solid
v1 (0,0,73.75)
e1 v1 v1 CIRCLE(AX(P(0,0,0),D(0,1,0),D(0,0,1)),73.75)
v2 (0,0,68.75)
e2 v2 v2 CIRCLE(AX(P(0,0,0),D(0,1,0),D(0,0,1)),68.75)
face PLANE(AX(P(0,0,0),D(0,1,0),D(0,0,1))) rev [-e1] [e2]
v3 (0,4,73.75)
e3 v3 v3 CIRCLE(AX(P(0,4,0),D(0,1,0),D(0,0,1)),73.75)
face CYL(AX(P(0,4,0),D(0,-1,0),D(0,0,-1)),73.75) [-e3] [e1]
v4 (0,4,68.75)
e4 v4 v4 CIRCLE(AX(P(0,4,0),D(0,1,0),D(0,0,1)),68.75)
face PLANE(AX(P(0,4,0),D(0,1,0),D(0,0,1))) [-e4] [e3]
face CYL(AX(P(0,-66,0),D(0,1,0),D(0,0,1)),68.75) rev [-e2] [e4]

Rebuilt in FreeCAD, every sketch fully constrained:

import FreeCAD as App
import Part
import Sketcher

doc = App.newDocument("Part")
body = doc.addObject("PartDesign::Body", "Body")

# Sketch on XZ plane
sketch1 = body.newObject("Sketcher::SketchObject", "Sketch")
sketch1.AttachmentSupport = (doc.getObject("XZ_Plane"), [""])
sketch1.MapMode = "FlatFace"
sketch1.addGeometry(Part.Circle(App.Vector(0, 0, 0), App.Vector(0, 0, 1), 73.75), False)
sketch1.addConstraint([
    Sketcher.Constraint("Coincident", 0, 3, -1, 1),
    Sketcher.Constraint("Diameter", 0, 147.5),
])
pad1 = body.newObject("PartDesign::Pad", "Pad")
pad1.Profile = sketch1
pad1.Length = 4
pad1.Reversed = True

# Sketch on XZ plane
sketch2 = body.newObject("Sketcher::SketchObject", "Sketch001")
sketch2.AttachmentSupport = (doc.getObject("XZ_Plane"), [""])
sketch2.MapMode = "FlatFace"
sketch2.AttachmentOffset = App.Placement(App.Vector(0, 0, -4), App.Rotation())
sketch2.addGeometry(Part.Circle(App.Vector(0, 0, 0), App.Vector(0, 0, 1), 68.75), False)
sketch2.addConstraint([
    Sketcher.Constraint("Coincident", 0, 3, -1, 1),
    Sketcher.Constraint("Diameter", 0, 137.5),
])
pocket1 = body.newObject("PartDesign::Pocket", "Pocket")
pocket1.Profile = sketch2
pocket1.Length = 70
pocket1.Reversed = True

doc.recompute()
